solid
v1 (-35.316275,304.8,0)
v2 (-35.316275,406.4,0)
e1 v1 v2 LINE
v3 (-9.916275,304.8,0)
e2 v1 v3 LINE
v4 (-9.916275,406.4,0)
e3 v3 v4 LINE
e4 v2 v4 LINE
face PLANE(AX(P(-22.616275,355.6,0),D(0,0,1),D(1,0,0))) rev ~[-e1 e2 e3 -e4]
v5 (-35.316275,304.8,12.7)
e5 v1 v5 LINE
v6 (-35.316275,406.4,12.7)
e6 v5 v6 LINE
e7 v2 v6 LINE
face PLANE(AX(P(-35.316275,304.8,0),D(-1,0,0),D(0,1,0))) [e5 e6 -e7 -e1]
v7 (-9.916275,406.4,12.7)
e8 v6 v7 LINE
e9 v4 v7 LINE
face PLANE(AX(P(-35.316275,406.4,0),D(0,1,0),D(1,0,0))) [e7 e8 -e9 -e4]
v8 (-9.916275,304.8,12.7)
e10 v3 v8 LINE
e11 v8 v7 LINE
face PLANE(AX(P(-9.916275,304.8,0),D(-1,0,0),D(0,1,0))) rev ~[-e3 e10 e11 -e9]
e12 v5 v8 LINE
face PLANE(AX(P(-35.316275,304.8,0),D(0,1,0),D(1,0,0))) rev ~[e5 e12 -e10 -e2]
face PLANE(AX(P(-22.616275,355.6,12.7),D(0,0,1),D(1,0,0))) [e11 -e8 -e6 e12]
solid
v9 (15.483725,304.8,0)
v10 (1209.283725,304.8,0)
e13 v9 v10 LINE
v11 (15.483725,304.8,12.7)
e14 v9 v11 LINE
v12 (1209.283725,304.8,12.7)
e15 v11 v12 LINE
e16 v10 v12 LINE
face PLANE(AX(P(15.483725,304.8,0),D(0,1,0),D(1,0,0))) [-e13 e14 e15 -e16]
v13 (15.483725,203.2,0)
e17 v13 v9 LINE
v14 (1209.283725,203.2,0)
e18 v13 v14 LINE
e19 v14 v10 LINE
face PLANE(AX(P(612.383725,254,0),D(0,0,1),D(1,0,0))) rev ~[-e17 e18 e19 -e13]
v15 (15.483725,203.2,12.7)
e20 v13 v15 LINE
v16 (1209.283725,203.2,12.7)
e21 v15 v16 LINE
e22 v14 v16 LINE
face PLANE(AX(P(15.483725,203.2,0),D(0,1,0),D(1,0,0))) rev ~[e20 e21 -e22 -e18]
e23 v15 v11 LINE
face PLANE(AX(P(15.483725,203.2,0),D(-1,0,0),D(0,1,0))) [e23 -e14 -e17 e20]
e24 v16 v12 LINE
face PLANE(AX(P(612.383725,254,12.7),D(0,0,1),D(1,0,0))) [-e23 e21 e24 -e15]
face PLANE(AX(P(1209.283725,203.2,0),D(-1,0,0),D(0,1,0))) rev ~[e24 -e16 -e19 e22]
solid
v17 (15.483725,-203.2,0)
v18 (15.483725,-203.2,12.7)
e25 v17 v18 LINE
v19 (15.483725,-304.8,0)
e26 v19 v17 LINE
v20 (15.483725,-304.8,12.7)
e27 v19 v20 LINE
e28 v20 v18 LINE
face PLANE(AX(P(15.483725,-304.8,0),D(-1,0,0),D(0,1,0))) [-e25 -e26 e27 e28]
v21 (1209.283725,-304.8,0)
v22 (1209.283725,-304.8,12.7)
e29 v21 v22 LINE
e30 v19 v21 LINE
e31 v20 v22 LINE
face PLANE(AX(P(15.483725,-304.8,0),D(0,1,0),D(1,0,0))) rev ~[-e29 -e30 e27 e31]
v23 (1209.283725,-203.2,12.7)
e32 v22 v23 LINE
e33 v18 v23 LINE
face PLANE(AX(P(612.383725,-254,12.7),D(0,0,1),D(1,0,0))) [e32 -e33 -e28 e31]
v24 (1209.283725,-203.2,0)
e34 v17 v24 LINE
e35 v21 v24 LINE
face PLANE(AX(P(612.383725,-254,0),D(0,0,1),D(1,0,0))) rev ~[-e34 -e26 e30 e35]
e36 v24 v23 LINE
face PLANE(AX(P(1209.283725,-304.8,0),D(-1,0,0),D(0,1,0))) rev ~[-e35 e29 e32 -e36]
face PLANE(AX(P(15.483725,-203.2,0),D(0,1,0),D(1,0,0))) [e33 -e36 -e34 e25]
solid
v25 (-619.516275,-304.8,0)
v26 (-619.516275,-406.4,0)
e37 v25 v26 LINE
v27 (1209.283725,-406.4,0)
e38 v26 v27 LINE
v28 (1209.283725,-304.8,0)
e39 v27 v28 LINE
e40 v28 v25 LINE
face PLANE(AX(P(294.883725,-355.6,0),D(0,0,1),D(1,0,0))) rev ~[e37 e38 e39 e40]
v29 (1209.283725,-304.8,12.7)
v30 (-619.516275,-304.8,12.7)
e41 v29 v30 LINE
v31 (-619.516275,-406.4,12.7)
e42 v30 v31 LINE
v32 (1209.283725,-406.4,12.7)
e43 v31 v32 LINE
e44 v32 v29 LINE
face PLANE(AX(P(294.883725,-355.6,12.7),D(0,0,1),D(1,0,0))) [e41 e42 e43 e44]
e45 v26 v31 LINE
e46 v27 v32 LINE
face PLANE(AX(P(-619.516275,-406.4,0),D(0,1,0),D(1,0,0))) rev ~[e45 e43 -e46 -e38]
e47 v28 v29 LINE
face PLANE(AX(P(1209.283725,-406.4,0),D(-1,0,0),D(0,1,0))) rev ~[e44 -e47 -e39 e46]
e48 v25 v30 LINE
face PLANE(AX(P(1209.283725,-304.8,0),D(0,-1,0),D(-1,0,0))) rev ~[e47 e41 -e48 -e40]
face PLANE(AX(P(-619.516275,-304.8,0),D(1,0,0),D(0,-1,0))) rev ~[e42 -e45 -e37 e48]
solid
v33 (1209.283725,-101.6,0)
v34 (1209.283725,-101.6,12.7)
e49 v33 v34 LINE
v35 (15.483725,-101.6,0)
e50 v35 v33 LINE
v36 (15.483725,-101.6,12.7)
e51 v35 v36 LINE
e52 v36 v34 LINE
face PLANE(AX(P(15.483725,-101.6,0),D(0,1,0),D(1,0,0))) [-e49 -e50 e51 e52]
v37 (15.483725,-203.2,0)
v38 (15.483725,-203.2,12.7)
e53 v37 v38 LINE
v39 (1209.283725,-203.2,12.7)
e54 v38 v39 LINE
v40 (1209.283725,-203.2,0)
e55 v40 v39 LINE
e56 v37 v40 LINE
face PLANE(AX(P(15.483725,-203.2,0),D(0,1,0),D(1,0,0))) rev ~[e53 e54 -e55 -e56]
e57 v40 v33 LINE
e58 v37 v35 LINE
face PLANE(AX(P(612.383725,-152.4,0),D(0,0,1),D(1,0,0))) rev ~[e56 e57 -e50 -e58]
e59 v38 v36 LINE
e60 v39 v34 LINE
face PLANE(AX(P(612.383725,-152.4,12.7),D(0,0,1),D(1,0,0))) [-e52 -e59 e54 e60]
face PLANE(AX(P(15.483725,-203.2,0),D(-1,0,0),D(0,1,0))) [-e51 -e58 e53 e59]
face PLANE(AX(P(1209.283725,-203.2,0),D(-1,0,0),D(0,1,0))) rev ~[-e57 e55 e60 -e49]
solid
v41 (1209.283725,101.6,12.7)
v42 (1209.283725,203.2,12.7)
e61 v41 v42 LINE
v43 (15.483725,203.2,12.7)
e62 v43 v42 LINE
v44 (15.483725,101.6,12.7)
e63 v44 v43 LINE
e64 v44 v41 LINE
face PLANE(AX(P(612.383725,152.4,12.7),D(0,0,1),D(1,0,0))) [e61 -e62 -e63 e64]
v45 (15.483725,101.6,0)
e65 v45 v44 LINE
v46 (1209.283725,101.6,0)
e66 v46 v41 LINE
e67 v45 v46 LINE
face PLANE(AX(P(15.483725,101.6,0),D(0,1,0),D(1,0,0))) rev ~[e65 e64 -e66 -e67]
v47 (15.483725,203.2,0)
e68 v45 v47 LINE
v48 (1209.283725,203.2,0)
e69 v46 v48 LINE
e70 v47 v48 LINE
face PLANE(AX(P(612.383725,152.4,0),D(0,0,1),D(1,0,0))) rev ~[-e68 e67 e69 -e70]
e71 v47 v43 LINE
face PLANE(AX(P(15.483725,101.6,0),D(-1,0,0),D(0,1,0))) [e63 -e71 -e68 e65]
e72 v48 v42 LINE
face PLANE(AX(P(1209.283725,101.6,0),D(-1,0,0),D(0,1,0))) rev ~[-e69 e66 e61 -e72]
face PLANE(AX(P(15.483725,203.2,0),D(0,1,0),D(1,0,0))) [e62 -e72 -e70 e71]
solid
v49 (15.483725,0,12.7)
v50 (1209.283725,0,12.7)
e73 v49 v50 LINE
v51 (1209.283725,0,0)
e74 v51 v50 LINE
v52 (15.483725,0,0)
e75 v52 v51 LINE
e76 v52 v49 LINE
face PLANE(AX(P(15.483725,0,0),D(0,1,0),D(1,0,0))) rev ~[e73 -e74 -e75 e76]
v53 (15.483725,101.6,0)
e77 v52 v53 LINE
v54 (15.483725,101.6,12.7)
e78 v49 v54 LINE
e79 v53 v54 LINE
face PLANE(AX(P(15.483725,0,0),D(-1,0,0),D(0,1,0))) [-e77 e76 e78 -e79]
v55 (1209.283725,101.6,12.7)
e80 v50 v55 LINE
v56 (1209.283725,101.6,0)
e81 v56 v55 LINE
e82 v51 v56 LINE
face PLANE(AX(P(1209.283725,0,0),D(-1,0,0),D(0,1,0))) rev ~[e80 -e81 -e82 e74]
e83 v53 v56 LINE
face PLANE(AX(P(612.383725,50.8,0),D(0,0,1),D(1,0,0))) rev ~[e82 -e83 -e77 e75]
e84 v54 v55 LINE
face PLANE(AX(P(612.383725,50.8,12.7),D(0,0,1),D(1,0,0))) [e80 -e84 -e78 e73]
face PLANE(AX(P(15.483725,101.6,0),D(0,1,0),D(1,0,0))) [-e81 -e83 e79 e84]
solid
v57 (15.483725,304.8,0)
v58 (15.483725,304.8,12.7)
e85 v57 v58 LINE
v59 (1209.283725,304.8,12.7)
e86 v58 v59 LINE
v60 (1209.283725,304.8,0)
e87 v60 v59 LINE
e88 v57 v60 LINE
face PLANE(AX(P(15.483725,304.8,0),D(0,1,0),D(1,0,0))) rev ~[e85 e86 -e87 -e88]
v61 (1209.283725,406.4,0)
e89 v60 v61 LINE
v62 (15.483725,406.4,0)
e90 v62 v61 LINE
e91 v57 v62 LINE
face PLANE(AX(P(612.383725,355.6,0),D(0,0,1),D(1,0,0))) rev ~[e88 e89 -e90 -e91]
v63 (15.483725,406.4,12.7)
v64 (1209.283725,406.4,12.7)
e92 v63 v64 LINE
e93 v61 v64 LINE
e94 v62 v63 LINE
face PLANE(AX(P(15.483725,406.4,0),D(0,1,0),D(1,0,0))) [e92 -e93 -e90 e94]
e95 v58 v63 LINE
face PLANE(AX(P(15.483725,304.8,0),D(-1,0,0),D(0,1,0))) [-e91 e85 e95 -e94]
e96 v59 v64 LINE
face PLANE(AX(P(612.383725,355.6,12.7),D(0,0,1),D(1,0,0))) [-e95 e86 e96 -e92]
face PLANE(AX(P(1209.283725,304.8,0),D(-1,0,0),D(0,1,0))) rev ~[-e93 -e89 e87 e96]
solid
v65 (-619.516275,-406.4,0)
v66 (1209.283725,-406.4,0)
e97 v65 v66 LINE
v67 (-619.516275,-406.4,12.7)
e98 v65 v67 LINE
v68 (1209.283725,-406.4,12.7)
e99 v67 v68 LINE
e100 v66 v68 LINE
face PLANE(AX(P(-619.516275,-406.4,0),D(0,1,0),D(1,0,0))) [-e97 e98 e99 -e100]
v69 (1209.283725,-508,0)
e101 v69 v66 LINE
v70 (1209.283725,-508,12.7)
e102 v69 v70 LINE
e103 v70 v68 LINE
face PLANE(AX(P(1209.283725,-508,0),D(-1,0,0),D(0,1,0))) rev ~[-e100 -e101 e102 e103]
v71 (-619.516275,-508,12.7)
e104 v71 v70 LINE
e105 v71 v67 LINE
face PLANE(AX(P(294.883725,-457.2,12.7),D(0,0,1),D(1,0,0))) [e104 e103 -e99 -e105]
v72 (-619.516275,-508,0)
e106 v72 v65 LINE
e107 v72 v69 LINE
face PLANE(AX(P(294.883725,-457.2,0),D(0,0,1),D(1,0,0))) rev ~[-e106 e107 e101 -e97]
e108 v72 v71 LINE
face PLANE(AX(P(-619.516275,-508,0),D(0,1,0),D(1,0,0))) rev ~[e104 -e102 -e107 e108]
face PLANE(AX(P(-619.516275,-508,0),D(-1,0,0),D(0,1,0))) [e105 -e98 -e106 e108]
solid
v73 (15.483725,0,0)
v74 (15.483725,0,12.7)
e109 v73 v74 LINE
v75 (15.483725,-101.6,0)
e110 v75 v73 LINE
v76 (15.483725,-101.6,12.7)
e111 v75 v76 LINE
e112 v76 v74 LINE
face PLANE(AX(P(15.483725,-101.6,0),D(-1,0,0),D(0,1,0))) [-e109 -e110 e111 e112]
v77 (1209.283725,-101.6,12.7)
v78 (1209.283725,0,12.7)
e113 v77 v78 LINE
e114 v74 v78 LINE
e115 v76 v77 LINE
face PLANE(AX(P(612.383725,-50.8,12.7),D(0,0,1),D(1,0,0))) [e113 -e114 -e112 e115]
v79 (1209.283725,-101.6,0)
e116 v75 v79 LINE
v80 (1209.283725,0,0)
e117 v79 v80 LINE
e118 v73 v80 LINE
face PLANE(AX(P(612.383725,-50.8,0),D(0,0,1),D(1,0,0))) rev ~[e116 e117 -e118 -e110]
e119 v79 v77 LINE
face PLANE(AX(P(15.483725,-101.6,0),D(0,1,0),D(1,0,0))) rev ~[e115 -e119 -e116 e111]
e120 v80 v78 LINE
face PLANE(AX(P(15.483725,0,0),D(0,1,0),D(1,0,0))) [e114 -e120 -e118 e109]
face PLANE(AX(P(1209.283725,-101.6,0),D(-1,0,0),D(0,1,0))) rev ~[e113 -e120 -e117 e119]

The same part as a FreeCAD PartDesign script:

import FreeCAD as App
import Part
import Sketcher

V = App.Vector
Q = App.Units.Quantity

doc = App.newDocument("Part")
body = doc.addObject("PartDesign::Body", "Body")

sketch1 = body.newObject("Sketcher::SketchObject", "Sketch")
sketch1.AttachmentSupport = (doc.getObject("XY_Plane"), [""])
sketch1.MapMode = "FlatFace"
sketch1.addGeometry([
    Part.LineSegment(V(15, 406, 0), V(15, 305, 0)),
    Part.LineSegment(V(15, 305, 0), V(1209, 305, 0)),
    Part.LineSegment(V(1209, 305, 0), V(1209, 406, 0)),
    Part.LineSegment(V(1209, 406, 0), V(15, 406, 0)),
], False)
sketch1.addConstraint([
    Sketcher.Constraint("Coincident", 0, 2, 1, 1),
    Sketcher.Constraint("Coincident", 1, 2, 2, 1),
    Sketcher.Constraint("Coincident", 2, 2, 3, 1),
    Sketcher.Constraint("Coincident", 3, 2, 0, 1),
    Sketcher.Constraint("Vertical", 0),
    Sketcher.Constraint("Horizontal", 1),
    Sketcher.Constraint("Vertical", 2),
    Sketcher.Constraint("Horizontal", 3),
    Sketcher.Constraint("DistanceX", 1, 1, 1, 2, Q("47 in")),
    Sketcher.Constraint("DistanceY", 0, 2, 0, 1, Q("4 in")),
    Sketcher.Constraint("DistanceY", -1, 1, 0, 2, Q("12 in")),
    Sketcher.Constraint("DistanceX", -1, 1, 0, 2, Q("15.483725 mm")),
])
pad1 = body.newObject("PartDesign::Pad", "Pad")
pad1.Profile = sketch1
pad1.Length = Q("0.5 in")
body2 = doc.addObject("PartDesign::Body", "Body001")

sketch2 = body2.newObject("Sketcher::SketchObject", "Sketch001")
sketch2.AttachmentSupport = (doc.getObject("XY_Plane001"), [""])
sketch2.MapMode = "FlatFace"
sketch2.addGeometry([
    Part.LineSegment(V(15, 305, 0), V(15, 203, 0)),
    Part.LineSegment(V(15, 203, 0), V(1209, 203, 0)),
    Part.LineSegment(V(1209, 203, 0), V(1209, 305, 0)),
    Part.LineSegment(V(1209, 305, 0), V(15, 305, 0)),
], False)
sketch2.addConstraint([
    Sketcher.Constraint("Coincident", 0, 2, 1, 1),
    Sketcher.Constraint("Coincident", 1, 2, 2, 1),
    Sketcher.Constraint("Coincident", 2, 2, 3, 1),
    Sketcher.Constraint("Coincident", 3, 2, 0, 1),
    Sketcher.Constraint("Vertical", 0),
    Sketcher.Constraint("Horizontal", 1),
    Sketcher.Constraint("Vertical", 2),
    Sketcher.Constraint("Horizontal", 3),
    Sketcher.Constraint("DistanceX", 1, 1, 1, 2, Q("47 in")),
    Sketcher.Constraint("DistanceY", 0, 2, 0, 1, Q("4 in")),
    Sketcher.Constraint("DistanceY", -1, 1, 0, 2, Q("8 in")),
    Sketcher.Constraint("DistanceX", -1, 1, 0, 2, Q("15.483725 mm")),
])
pad2 = body2.newObject("PartDesign::Pad", "Pad001")
pad2.Profile = sketch2
pad2.Length = Q("0.5 in")
body3 = doc.addObject("PartDesign::Body", "Body002")

sketch3 = body3.newObject("Sketcher::SketchObject", "Sketch002")
sketch3.AttachmentSupport = (doc.getObject("XY_Plane002"), [""])
sketch3.MapMode = "FlatFace"
sketch3.addGeometry([
    Part.LineSegment(V(15, 203, 0), V(15, 102, 0)),
    Part.LineSegment(V(15, 102, 0), V(1209, 102, 0)),
    Part.LineSegment(V(1209, 102, 0), V(1209, 203, 0)),
    Part.LineSegment(V(1209, 203, 0), V(15, 203, 0)),
], False)
sketch3.addConstraint([
    Sketcher.Constraint("Coincident", 0, 2, 1, 1),
    Sketcher.Constraint("Coincident", 1, 2, 2, 1),
    Sketcher.Constraint("Coincident", 2, 2, 3, 1),
    Sketcher.Constraint("Coincident", 3, 2, 0, 1),
    Sketcher.Constraint("Vertical", 0),
    Sketcher.Constraint("Horizontal", 1),
    Sketcher.Constraint("Vertical", 2),
    Sketcher.Constraint("Horizontal", 3),
    Sketcher.Constraint("DistanceX", 1, 1, 1, 2, Q("47 in")),
    Sketcher.Constraint("DistanceY", 0, 2, 0, 1, Q("4 in")),
    Sketcher.Constraint("DistanceY", -1, 1, 0, 2, Q("4 in")),
    Sketcher.Constraint("DistanceX", -1, 1, 0, 2, Q("15.483725 mm")),
])
pad3 = body3.newObject("PartDesign::Pad", "Pad002")
pad3.Profile = sketch3
pad3.Length = Q("0.5 in")
body4 = doc.addObject("PartDesign::Body", "Body003")

sketch4 = body4.newObject("Sketcher::SketchObject", "Sketch003")
sketch4.AttachmentSupport = (doc.getObject("XY_Plane003"), [""])
sketch4.MapMode = "FlatFace"
sketch4.addGeometry([
    Part.LineSegment(V(15, 102, 0), V(15, 0, 0)),
    Part.LineSegment(V(15, 0, 0), V(1209, 0, 0)),
    Part.LineSegment(V(1209, 0, 0), V(1209, 102, 0)),
    Part.LineSegment(V(1209, 102, 0), V(15, 102, 0)),
], False)
sketch4.addConstraint([
    Sketcher.Constraint("Coincident", 0, 2, 1, 1),
    Sketcher.Constraint("Coincident", 1, 2, 2, 1),
    Sketcher.Constraint("Coincident", 2, 2, 3, 1),
    Sketcher.Constraint("Coincident", 3, 2, 0, 1),
    Sketcher.Constraint("Vertical", 0),
    Sketcher.Constraint("Horizontal", 1),
    Sketcher.Constraint("Vertical", 2),
    Sketcher.Constraint("Horizontal", 3),
    Sketcher.Constraint("PointOnObject", 0, 2, -1),
    Sketcher.Constraint("DistanceX", 1, 1, 1, 2, Q("47 in")),
    Sketcher.Constraint("DistanceY", 0, 2, 0, 1, Q("4 in")),
    Sketcher.Constraint("DistanceX", -1, 1, 0, 2, Q("15.483725 mm")),
])
pad4 = body4.newObject("PartDesign::Pad", "Pad003")
pad4.Profile = sketch4
pad4.Length = Q("0.5 in")
body5 = doc.addObject("PartDesign::Body", "Body004")

sketch5 = body5.newObject("Sketcher::SketchObject", "Sketch004")
sketch5.AttachmentSupport = (doc.getObject("XY_Plane004"), [""])
sketch5.MapMode = "FlatFace"
sketch5.addGeometry([
    Part.LineSegment(V(15, 0, 0), V(15, -102, 0)),
    Part.LineSegment(V(15, -102, 0), V(1209, -102, 0)),
    Part.LineSegment(V(1209, -102, 0), V(1209, 0, 0)),
    Part.LineSegment(V(1209, 0, 0), V(15, 0, 0)),
], False)
sketch5.addConstraint([
    Sketcher.Constraint("Coincident", 0, 2, 1, 1),
    Sketcher.Constraint("Coincident", 1, 2, 2, 1),
    Sketcher.Constraint("Coincident", 2, 2, 3, 1),
    Sketcher.Constraint("Coincident", 3, 2, 0, 1),
    Sketcher.Constraint("Vertical", 0),
    Sketcher.Constraint("Horizontal", 1),
    Sketcher.Constraint("Vertical", 2),
    Sketcher.Constraint("Horizontal", 3),
    Sketcher.Constraint("PointOnObject", 2, 2, -1),
    Sketcher.Constraint("DistanceX", 1, 1, 1, 2, Q("47 in")),
    Sketcher.Constraint("DistanceY", 0, 2, 0, 1, Q("4 in")),
    Sketcher.Constraint("DistanceX", -1, 1, 0, 2, Q("15.483725 mm")),
])
pad5 = body5.newObject("PartDesign::Pad", "Pad004")
pad5.Profile = sketch5
pad5.Length = Q("0.5 in")
body6 = doc.addObject("PartDesign::Body", "Body005")

sketch6 = body6.newObject("Sketcher::SketchObject", "Sketch005")
sketch6.AttachmentSupport = (doc.getObject("XY_Plane005"), [""])
sketch6.MapMode = "FlatFace"
sketch6.addGeometry([
    Part.LineSegment(V(15, -102, 0), V(15, -203, 0)),
    Part.LineSegment(V(15, -203, 0), V(1209, -203, 0)),
    Part.LineSegment(V(1209, -203, 0), V(1209, -102, 0)),
    Part.LineSegment(V(1209, -102, 0), V(15, -102, 0)),
], False)
sketch6.addConstraint([
    Sketcher.Constraint("Coincident", 0, 2, 1, 1),
    Sketcher.Constraint("Coincident", 1, 2, 2, 1),
    Sketcher.Constraint("Coincident", 2, 2, 3, 1),
    Sketcher.Constraint("Coincident", 3, 2, 0, 1),
    Sketcher.Constraint("Vertical", 0),
    Sketcher.Constraint("Horizontal", 1),
    Sketcher.Constraint("Vertical", 2),
    Sketcher.Constraint("Horizontal", 3),
    Sketcher.Constraint("DistanceX", 1, 1, 1, 2, Q("47 in")),
    Sketcher.Constraint("DistanceY", 0, 2, 0, 1, Q("4 in")),
    Sketcher.Constraint("DistanceY", 0, 2, -1, 1, Q("8 in")),
    Sketcher.Constraint("DistanceX", -1, 1, 0, 2, Q("15.483725 mm")),
])
pad6 = body6.newObject("PartDesign::Pad", "Pad005")
pad6.Profile = sketch6
pad6.Length = Q("0.5 in")
body7 = doc.addObject("PartDesign::Body", "Body006")

sketch7 = body7.newObject("Sketcher::SketchObject", "Sketch006")
sketch7.AttachmentSupport = (doc.getObject("XY_Plane006"), [""])
sketch7.MapMode = "FlatFace"
sketch7.addGeometry([
    Part.LineSegment(V(15, -203, 0), V(15, -305, 0)),
    Part.LineSegment(V(15, -305, 0), V(1209, -305, 0)),
    Part.LineSegment(V(1209, -305, 0), V(1209, -203, 0)),
    Part.LineSegment(V(1209, -203, 0), V(15, -203, 0)),
], False)
sketch7.addConstraint([
    Sketcher.Constraint("Coincident", 0, 2, 1, 1),
    Sketcher.Constraint("Coincident", 1, 2, 2, 1),
    Sketcher.Constraint("Coincident", 2, 2, 3, 1),
    Sketcher.Constraint("Coincident", 3, 2, 0, 1),
    Sketcher.Constraint("Vertical", 0),
    Sketcher.Constraint("Horizontal", 1),
    Sketcher.Constraint("Vertical", 2),
    Sketcher.Constraint("Horizontal", 3),
    Sketcher.Constraint("DistanceX", 1, 1, 1, 2, Q("47 in")),
    Sketcher.Constraint("DistanceY", 0, 2, 0, 1, Q("4 in")),
    Sketcher.Constraint("DistanceY", 0, 2, -1, 1, Q("12 in")),
    Sketcher.Constraint("DistanceX", -1, 1, 0, 2, Q("15.483725 mm")),
])
pad7 = body7.newObject("PartDesign::Pad", "Pad006")
pad7.Profile = sketch7
pad7.Length = Q("0.5 in")
body8 = doc.addObject("PartDesign::Body", "Body007")

sketch8 = body8.newObject("Sketcher::SketchObject", "Sketch007")
sketch8.AttachmentSupport = (doc.getObject("XY_Plane007"), [""])
sketch8.MapMode = "FlatFace"
sketch8.addGeometry([
    Part.LineSegment(V(-620, -305, 0), V(-620, -406, 0)),
    Part.LineSegment(V(-620, -406, 0), V(1209, -406, 0)),
    Part.LineSegment(V(1209, -406, 0), V(1209, -305, 0)),
    Part.LineSegment(V(1209, -305, 0), V(-620, -305, 0)),
], False)
sketch8.addConstraint([
    Sketcher.Constraint("Coincident", 0, 2, 1, 1),
    Sketcher.Constraint("Coincident", 1, 2, 2, 1),
    Sketcher.Constraint("Coincident", 2, 2, 3, 1),
    Sketcher.Constraint("Coincident", 3, 2, 0, 1),
    Sketcher.Constraint("Vertical", 0),
    Sketcher.Constraint("Horizontal", 1),
    Sketcher.Constraint("Vertical", 2),
    Sketcher.Constraint("Horizontal", 3),
    Sketcher.Constraint("DistanceX", 1, 1, 1, 2, Q("72 in")),
    Sketcher.Constraint("DistanceY", 0, 2, 0, 1, Q("4 in")),
    Sketcher.Constraint("DistanceY", 0, 2, -1, 1, Q("16 in")),
    Sketcher.Constraint("DistanceX", 0, 2, -1, 1, Q("619.516275 mm")),
])
pad8 = body8.newObject("PartDesign::Pad", "Pad007")
pad8.Profile = sketch8
pad8.Length = Q("0.5 in")
body9 = doc.addObject("PartDesign::Body", "Body008")

sketch9 = body9.newObject("Sketcher::SketchObject", "Sketch008")
sketch9.AttachmentSupport = (doc.getObject("XY_Plane008"), [""])
sketch9.MapMode = "FlatFace"
sketch9.addGeometry([
    Part.LineSegment(V(-620, -406, 0), V(-620, -508, 0)),
    Part.LineSegment(V(-620, -508, 0), V(1209, -508, 0)),
    Part.LineSegment(V(1209, -508, 0), V(1209, -406, 0)),
    Part.LineSegment(V(1209, -406, 0), V(-620, -406, 0)),
], False)
sketch9.addConstraint([
    Sketcher.Constraint("Coincident", 0, 2, 1, 1),
    Sketcher.Constraint("Coincident", 1, 2, 2, 1),
    Sketcher.Constraint("Coincident", 2, 2, 3, 1),
    Sketcher.Constraint("Coincident", 3, 2, 0, 1),
    Sketcher.Constraint("Vertical", 0),
    Sketcher.Constraint("Horizontal", 1),
    Sketcher.Constraint("Vertical", 2),
    Sketcher.Constraint("Horizontal", 3),
    Sketcher.Constraint("DistanceX", 1, 1, 1, 2, Q("72 in")),
    Sketcher.Constraint("DistanceY", 0, 2, 0, 1, Q("4 in")),
    Sketcher.Constraint("DistanceY", 0, 2, -1, 1, Q("20 in")),
    Sketcher.Constraint("DistanceX", 0, 2, -1, 1, Q("619.516275 mm")),
])
pad9 = body9.newObject("PartDesign::Pad", "Pad008")
pad9.Profile = sketch9
pad9.Length = Q("0.5 in")
body10 = doc.addObject("PartDesign::Body", "Body009")

sketch10 = body10.newObject("Sketcher::SketchObject", "Sketch009")
sketch10.AttachmentSupport = (doc.getObject("XY_Plane009"), [""])
sketch10.MapMode = "FlatFace"
sketch10.addGeometry([
    Part.LineSegment(V(-35, 406, 0), V(-35, 305, 0)),
    Part.LineSegment(V(-35, 305, 0), V(-10, 305, 0)),
    Part.LineSegment(V(-10, 305, 0), V(-10, 406, 0)),
    Part.LineSegment(V(-10, 406, 0), V(-35, 406, 0)),
], False)
sketch10.addConstraint([
    Sketcher.Constraint("Coincident", 0, 2, 1, 1),
    Sketcher.Constraint("Coincident", 1, 2, 2, 1),
    Sketcher.Constraint("Coincident", 2, 2, 3, 1),
    Sketcher.Constraint("Coincident", 3, 2, 0, 1),
    Sketcher.Constraint("Vertical", 0),
    Sketcher.Constraint("Horizontal", 1),
    Sketcher.Constraint("Vertical", 2),
    Sketcher.Constraint("Horizontal", 3),
    Sketcher.Constraint("DistanceX", 1, 1, 1, 2, Q("1 in")),
    Sketcher.Constraint("DistanceY", 0, 2, 0, 1, Q("4 in")),
    Sketcher.Constraint("DistanceY", -1, 1, 0, 2, Q("12 in")),
    Sketcher.Constraint("DistanceX", 0, 2, -1, 1, Q("35.316275 mm")),
])
pad10 = body10.newObject("PartDesign::Pad", "Pad009")
pad10.Profile = sketch10
pad10.Length = Q("0.5 in")

doc.recompute()
